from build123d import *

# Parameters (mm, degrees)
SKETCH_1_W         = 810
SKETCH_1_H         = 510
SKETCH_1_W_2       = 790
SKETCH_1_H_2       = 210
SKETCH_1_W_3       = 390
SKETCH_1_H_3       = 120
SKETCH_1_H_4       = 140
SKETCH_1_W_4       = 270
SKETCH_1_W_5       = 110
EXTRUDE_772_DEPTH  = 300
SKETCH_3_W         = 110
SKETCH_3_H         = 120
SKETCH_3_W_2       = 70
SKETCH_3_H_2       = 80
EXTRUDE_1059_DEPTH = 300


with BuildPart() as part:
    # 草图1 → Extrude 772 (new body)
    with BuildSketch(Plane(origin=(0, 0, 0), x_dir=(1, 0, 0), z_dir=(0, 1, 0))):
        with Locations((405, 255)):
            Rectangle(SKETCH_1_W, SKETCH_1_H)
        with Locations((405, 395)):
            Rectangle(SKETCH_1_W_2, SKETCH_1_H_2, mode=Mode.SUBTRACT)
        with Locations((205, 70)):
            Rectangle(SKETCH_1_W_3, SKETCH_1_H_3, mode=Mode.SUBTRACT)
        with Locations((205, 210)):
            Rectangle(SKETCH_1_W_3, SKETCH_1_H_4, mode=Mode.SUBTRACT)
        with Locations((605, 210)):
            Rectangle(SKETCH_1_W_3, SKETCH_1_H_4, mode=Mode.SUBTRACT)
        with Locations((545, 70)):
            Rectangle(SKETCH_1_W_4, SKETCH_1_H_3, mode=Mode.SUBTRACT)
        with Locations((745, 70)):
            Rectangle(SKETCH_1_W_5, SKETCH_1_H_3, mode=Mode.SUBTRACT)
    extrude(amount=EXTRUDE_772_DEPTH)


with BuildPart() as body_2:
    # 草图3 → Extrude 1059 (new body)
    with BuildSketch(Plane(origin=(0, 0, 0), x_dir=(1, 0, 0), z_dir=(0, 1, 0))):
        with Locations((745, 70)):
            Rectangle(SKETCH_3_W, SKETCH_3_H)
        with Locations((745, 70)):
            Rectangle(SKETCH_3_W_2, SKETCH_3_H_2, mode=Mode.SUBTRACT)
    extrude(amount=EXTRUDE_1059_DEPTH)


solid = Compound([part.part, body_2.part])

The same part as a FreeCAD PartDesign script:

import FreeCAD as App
import Part
import Sketcher

V = App.Vector

doc = App.newDocument("Part")
body = doc.addObject("PartDesign::Body", "Body")

sketch1 = doc.addObject("Sketcher::SketchObject", "Sketch")
body.addObject(sketch1)
sketch1.AttachmentSupport = (doc.XZ_Plane, [""])
sketch1.MapMode = "FlatFace"
sketch1.addGeometry([
    Part.LineSegment(V(0, -510, 0), V(0, 0, 0)),
    Part.LineSegment(V(0, 0, 0), V(810, 0, 0)),
    Part.LineSegment(V(810, 0, 0), V(810, -510, 0)),
    Part.LineSegment(V(810, -510, 0), V(0, -510, 0)),
    Part.LineSegment(V(400, -10, 0), V(10, -10, 0)),
    Part.LineSegment(V(10, -10, 0), V(10, -130, 0)),
    Part.LineSegment(V(10, -130, 0), V(400, -130, 0)),
    Part.LineSegment(V(400, -130, 0), V(400, -10, 0)),
    Part.LineSegment(V(400, -140, 0), V(10, -140, 0)),
    Part.LineSegment(V(10, -140, 0), V(10, -280, 0)),
    Part.LineSegment(V(10, -280, 0), V(400, -280, 0)),
    Part.LineSegment(V(400, -280, 0), V(400, -140, 0)),
    Part.LineSegment(V(680, -10, 0), V(410, -10, 0)),
    Part.LineSegment(V(410, -10, 0), V(410, -130, 0)),
    Part.LineSegment(V(410, -130, 0), V(680, -130, 0)),
    Part.LineSegment(V(680, -130, 0), V(680, -10, 0)),
    Part.LineSegment(V(800, -10, 0), V(690, -10, 0)),
    Part.LineSegment(V(690, -10, 0), V(690, -130, 0)),
    Part.LineSegment(V(690, -130, 0), V(800, -130, 0)),
    Part.LineSegment(V(800, -130, 0), V(800, -10, 0)),
    Part.LineSegment(V(800, -140, 0), V(410, -140, 0)),
    Part.LineSegment(V(410, -140, 0), V(410, -280, 0)),
    Part.LineSegment(V(410, -280, 0), V(800, -280, 0)),
    Part.LineSegment(V(800, -280, 0), V(800, -140, 0)),
    Part.LineSegment(V(800, -290, 0), V(10, -290, 0)),
    Part.LineSegment(V(10, -290, 0), V(10, -500, 0)),
    Part.LineSegment(V(10, -500, 0), V(800, -500, 0)),
    Part.LineSegment(V(800, -500, 0), V(800, -290, 0)),
], False)
sketch1.addConstraint([
    Sketcher.Constraint("Coincident", 0, 2, 1, 1),
    Sketcher.Constraint("Coincident", 1, 2, 2, 1),
    Sketcher.Constraint("Coincident", 2, 2, 3, 1),
    Sketcher.Constraint("Coincident", 3, 2, 0, 1),
    Sketcher.Constraint("Coincident", 4, 2, 5, 1),
    Sketcher.Constraint("Coincident", 5, 2, 6, 1),
    Sketcher.Constraint("Coincident", 6, 2, 7, 1),
    Sketcher.Constraint("Coincident", 7, 2, 4, 1),
    Sketcher.Constraint("Coincident", 8, 2, 9, 1),
    Sketcher.Constraint("Coincident", 9, 2, 10, 1),
    Sketcher.Constraint("Coincident", 10, 2, 11, 1),
    Sketcher.Constraint("Coincident", 11, 2, 8, 1),
    Sketcher.Constraint("Coincident", 12, 2, 13, 1),
    Sketcher.Constraint("Coincident", 13, 2, 14, 1),
    Sketcher.Constraint("Coincident", 14, 2, 15, 1),
    Sketcher.Constraint("Coincident", 15, 2, 12, 1),
    Sketcher.Constraint("Coincident", 16, 2, 17, 1),
    Sketcher.Constraint("Coincident", 17, 2, 18, 1),
    Sketcher.Constraint("Coincident", 18, 2, 19, 1),
    Sketcher.Constraint("Coincident", 19, 2, 16, 1),
    Sketcher.Constraint("Coincident", 20, 2, 21, 1),
    Sketcher.Constraint("Coincident", 21, 2, 22, 1),
    Sketcher.Constraint("Coincident", 22, 2, 23, 1),
    Sketcher.Constraint("Coincident", 23, 2, 20, 1),
    Sketcher.Constraint("Coincident", 24, 2, 25, 1),
    Sketcher.Constraint("Coincident", 25, 2, 26, 1),
    Sketcher.Constraint("Coincident", 26, 2, 27, 1),
    Sketcher.Constraint("Coincident", 27, 2, 24, 1),
    Sketcher.Constraint("Vertical", 0),
    Sketcher.Constraint("Horizontal", 1),
    Sketcher.Constraint("Vertical", 2),
    Sketcher.Constraint("Horizontal", 3),
    Sketcher.Constraint("Horizontal", 4),
    Sketcher.Constraint("Vertical", 5),
    Sketcher.Constraint("Horizontal", 6),
    Sketcher.Constraint("Vertical", 7),
    Sketcher.Constraint("Horizontal", 8),
    Sketcher.Constraint("Vertical", 9),
    Sketcher.Constraint("Horizontal", 10),
    Sketcher.Constraint("Vertical", 11),
    Sketcher.Constraint("Horizontal", 12),
    Sketcher.Constraint("Vertical", 13),
    Sketcher.Constraint("Horizontal", 14),
    Sketcher.Constraint("Vertical", 15),
    Sketcher.Constraint("Horizontal", 16),
    Sketcher.Constraint("Vertical", 17),
    Sketcher.Constraint("Horizontal", 18),
    Sketcher.Constraint("Vertical", 19),
    Sketcher.Constraint("Horizontal", 20),
    Sketcher.Constraint("Vertical", 21),
    Sketcher.Constraint("Horizontal", 22),
    Sketcher.Constraint("Vertical", 23),
    Sketcher.Constraint("Horizontal", 24),
    Sketcher.Constraint("Vertical", 25),
    Sketcher.Constraint("Horizontal", 26),
    Sketcher.Constraint("Vertical", 27),
    Sketcher.Constraint("Coincident", 0, 2, -1, 1),
    Sketcher.Constraint("Horizontal", 7, 2, 12, 2),
    Sketcher.Constraint("Horizontal", 6, 2, 13, 2),
    Sketcher.Constraint("Horizontal", 15, 2, 16, 2),
    Sketcher.Constraint("Horizontal", 14, 2, 17, 2),
    Sketcher.Constraint("Horizontal", 11, 2, 20, 2),
    Sketcher.Constraint("Horizontal", 10, 2, 21, 2),
    Sketcher.Constraint("Vertical", 5, 2, 8, 2),
    Sketcher.Constraint("Vertical", 7, 2, 10, 2),
    Sketcher.Constraint("Vertical", 13, 2, 20, 2),
    Sketcher.Constraint("Vertical", 19, 2, 22, 2),
    Sketcher.Constraint("Vertical", 9, 2, 24, 2),
    Sketcher.Constraint("Vertical", 23, 2, 26, 2),
    Sketcher.Constraint("Equal", 10, 20),
    Sketcher.Constraint("DistanceX", 1, 1, 1, 2, 810.0),
    Sketcher.Constraint("DistanceX", 4, 2, 4, 1, 390.0),
    Sketcher.Constraint("DistanceX", 12, 2, 12, 1, 270.0),
    Sketcher.Constraint("DistanceX", 16, 2, 16, 1, 110.0),
    Sketcher.Constraint("DistanceX", 24, 2, 24, 1, 790.0),
    Sketcher.Constraint("DistanceY", 0, 1, 0, 2, 510.0),
    Sketcher.Constraint("DistanceY", 5, 2, 5, 1, 120.0),
    Sketcher.Constraint("DistanceY", 9, 2, 9, 1, 140.0),
    Sketcher.Constraint("DistanceY", 25, 2, 25, 1, 210.0),
    Sketcher.Constraint("DistanceX", -1, 1, 4, 2, 10.0),
    Sketcher.Constraint("DistanceY", 4, 2, -1, 1, 10.0),
    Sketcher.Constraint("DistanceY", 8, 2, -1, 1, 140.0),
    Sketcher.Constraint("DistanceY", 24, 2, -1, 1, 290.0),
])
pad1 = doc.addObject("PartDesign::Pad", "Pad")
body.addObject(pad1)
pad1.Profile = sketch1
pad1.Length = 300
pad1.Reversed = True
body2 = doc.addObject("PartDesign::Body", "Body001")

sketch2 = doc.addObject("Sketcher::SketchObject", "Sketch001")
body2.addObject(sketch2)
sketch2.AttachmentSupport = (doc.getObject("XZ_Plane001"), [""])
sketch2.MapMode = "FlatFace"
sketch2.addGeometry([
    Part.LineSegment(V(690, -130, 0), V(690, -10, 0)),
    Part.LineSegment(V(690, -10, 0), V(800, -10, 0)),
    Part.LineSegment(V(800, -10, 0), V(800, -130, 0)),
    Part.LineSegment(V(800, -130, 0), V(690, -130, 0)),
    Part.LineSegment(V(780, -30, 0), V(710, -30, 0)),
    Part.LineSegment(V(710, -30, 0), V(710, -110, 0)),
    Part.LineSegment(V(710, -110, 0), V(780, -110, 0)),
    Part.LineSegment(V(780, -110, 0), V(780, -30, 0)),
], False)
sketch2.addConstraint([
    Sketcher.Constraint("Coincident", 0, 2, 1, 1),
    Sketcher.Constraint("Coincident", 1, 2, 2, 1),
    Sketcher.Constraint("Coincident", 2, 2, 3, 1),
    Sketcher.Constraint("Coincident", 3, 2, 0, 1),
    Sketcher.Constraint("Coincident", 4, 2, 5, 1),
    Sketcher.Constraint("Coincident", 5, 2, 6, 1),
    Sketcher.Constraint("Coincident", 6, 2, 7, 1),
    Sketcher.Constraint("Coincident", 7, 2, 4, 1),
    Sketcher.Constraint("Vertical", 0),
    Sketcher.Constraint("Horizontal", 1),
    Sketcher.Constraint("Vertical", 2),
    Sketcher.Constraint("Horizontal", 3),
    Sketcher.Constraint("Horizontal", 4),
    Sketcher.Constraint("Vertical", 5),
    Sketcher.Constraint("Horizontal", 6),
    Sketcher.Constraint("Vertical", 7),
    Sketcher.Constraint("DistanceX", 1, 1, 1, 2, 110.0),
    Sketcher.Constraint("DistanceX", 4, 2, 4, 1, 70.0),
    Sketcher.Constraint("DistanceY", 0, 1, 0, 2, 120.0),
    Sketcher.Constraint("DistanceY", 5, 2, 5, 1, 80.0),
    Sketcher.Constraint("DistanceX", -1, 1, 0, 2, 690.0),
    Sketcher.Constraint("DistanceY", 0, 2, -1, 1, 10.0),
    Sketcher.Constraint("DistanceX", -1, 1, 4, 2, 710.0),
    Sketcher.Constraint("DistanceY", 4, 2, -1, 1, 30.0),
])
pad2 = doc.addObject("PartDesign::Pad", "Pad001")
body2.addObject(pad2)
pad2.Profile = sketch2
pad2.Length = 300
pad2.Reversed = True

doc.recompute()
